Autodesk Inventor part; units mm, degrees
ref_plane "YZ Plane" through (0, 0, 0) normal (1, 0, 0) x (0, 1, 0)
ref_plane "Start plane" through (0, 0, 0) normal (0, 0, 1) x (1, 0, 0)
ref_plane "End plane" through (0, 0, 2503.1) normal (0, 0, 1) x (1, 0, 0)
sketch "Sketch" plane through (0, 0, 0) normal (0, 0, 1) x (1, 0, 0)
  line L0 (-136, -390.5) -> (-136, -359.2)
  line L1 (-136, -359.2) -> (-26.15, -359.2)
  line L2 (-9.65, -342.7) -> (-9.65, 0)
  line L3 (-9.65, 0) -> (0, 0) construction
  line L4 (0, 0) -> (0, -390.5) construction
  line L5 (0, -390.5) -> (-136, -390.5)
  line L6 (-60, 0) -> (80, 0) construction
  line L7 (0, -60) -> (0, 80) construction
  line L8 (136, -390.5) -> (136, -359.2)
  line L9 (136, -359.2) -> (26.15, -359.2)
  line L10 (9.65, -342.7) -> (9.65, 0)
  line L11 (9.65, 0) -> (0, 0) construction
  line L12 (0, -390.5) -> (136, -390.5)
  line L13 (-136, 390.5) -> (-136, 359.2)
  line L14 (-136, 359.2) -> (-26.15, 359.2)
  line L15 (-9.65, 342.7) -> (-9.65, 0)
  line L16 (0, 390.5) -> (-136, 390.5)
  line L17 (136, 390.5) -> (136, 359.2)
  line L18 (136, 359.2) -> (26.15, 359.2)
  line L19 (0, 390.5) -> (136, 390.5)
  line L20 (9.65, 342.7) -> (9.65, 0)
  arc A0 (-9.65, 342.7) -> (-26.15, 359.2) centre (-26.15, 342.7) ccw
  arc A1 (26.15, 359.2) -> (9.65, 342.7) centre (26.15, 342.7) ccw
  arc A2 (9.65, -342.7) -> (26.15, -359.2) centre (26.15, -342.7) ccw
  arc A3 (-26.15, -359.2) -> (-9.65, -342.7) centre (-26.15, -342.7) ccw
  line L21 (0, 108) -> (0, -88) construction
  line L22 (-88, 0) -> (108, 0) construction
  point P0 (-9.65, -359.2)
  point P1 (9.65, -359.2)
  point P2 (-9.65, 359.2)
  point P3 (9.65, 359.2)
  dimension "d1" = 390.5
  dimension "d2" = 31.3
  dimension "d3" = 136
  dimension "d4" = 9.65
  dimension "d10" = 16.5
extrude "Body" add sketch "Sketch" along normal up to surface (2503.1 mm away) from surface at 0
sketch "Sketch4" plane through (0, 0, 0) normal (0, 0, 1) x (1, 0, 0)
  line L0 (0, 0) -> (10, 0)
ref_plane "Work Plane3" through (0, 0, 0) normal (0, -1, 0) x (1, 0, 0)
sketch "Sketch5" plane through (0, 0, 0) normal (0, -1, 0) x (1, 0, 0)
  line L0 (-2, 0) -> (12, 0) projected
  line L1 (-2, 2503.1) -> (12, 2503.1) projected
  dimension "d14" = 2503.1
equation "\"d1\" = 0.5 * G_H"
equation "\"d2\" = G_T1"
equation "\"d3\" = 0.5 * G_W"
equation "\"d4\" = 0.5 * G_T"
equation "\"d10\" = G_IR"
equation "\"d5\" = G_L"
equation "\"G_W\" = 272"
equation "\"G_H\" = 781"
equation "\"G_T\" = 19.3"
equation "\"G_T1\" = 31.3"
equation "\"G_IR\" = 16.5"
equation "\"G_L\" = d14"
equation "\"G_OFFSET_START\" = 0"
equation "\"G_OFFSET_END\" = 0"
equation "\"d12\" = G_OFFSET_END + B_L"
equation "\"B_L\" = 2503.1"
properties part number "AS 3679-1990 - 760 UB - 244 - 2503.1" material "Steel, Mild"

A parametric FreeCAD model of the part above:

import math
import FreeCAD as App
import Part
import Sketcher

doc = App.newDocument("Part")
params = doc.addObject("Spreadsheet::Sheet", "Params")
for row, (alias, value) in enumerate([
    ("sketch1_radius", "16.5 mm"),
    ("sketch1_height", "31.3 mm"),
    ("pad1_length", "2503.1 mm"),
], start=1):
    params.set(f"A{row}", alias)
    params.set(f"B{row}", "=" + value)
    params.setAlias(f"B{row}", alias)

body = doc.addObject("PartDesign::Body", "Body")

# Sketch on XY plane
sketch1 = body.newObject("Sketcher::SketchObject", "Sketch")
sketch1.AttachmentSupport = (doc.getObject("XY_Plane"), [""])
sketch1.MapMode = "FlatFace"
sketch1.addGeometry(Part.LineSegment(App.Vector(-136, -359, 0), App.Vector(-136, -390, 0)), False)
sketch1.addGeometry(Part.LineSegment(App.Vector(-136, -390, 0), App.Vector(136, -390, 0)), False)
sketch1.addGeometry(Part.LineSegment(App.Vector(136, -390, 0), App.Vector(136, -359, 0)), False)
sketch1.addGeometry(Part.LineSegment(App.Vector(136, -359, 0), App.Vector(26, -359, 0)), False)
sketch1.addGeometry(Part.ArcOfCircle(Part.Circle(App.Vector(26, -343, 0), App.Vector(0, 0, 1), 16), math.radians(180), math.radians(270)), False)
sketch1.addGeometry(Part.LineSegment(App.Vector(10, -343, 0), App.Vector(10, 343, 0)), False)
sketch1.addGeometry(Part.ArcOfCircle(Part.Circle(App.Vector(26, 343, 0), App.Vector(0, 0, 1), 16), math.radians(90), math.radians(180)), False)
sketch1.addGeometry(Part.LineSegment(App.Vector(26, 359, 0), App.Vector(136, 359, 0)), False)
sketch1.addGeometry(Part.LineSegment(App.Vector(136, 359, 0), App.Vector(136, 390, 0)), False)
sketch1.addGeometry(Part.LineSegment(App.Vector(136, 390, 0), App.Vector(-136, 390, 0)), False)
sketch1.addGeometry(Part.LineSegment(App.Vector(-136, 390, 0), App.Vector(-136, 359, 0)), False)
sketch1.addGeometry(Part.LineSegment(App.Vector(-136, 359, 0), App.Vector(-26, 359, 0)), False)
sketch1.addGeometry(Part.ArcOfCircle(Part.Circle(App.Vector(-26, 343, 0), App.Vector(0, 0, 1), 16), math.radians(0), math.radians(90)), False)
sketch1.addGeometry(Part.LineSegment(App.Vector(-10, 343, 0), App.Vector(-10, -343, 0)), False)
sketch1.addGeometry(Part.ArcOfCircle(Part.Circle(App.Vector(-26, -343, 0), App.Vector(0, 0, 1), 16), math.radians(-90), math.radians(0)), False)
sketch1.addGeometry(Part.LineSegment(App.Vector(-26, -359, 0), App.Vector(-136, -359, 0)), False)
sketch1.addConstraint(Sketcher.Constraint("Coincident", 0, 2, 1, 1))
sketch1.addConstraint(Sketcher.Constraint("Coincident", 1, 2, 2, 1))
sketch1.addConstraint(Sketcher.Constraint("Coincident", 2, 2, 3, 1))
sketch1.addConstraint(Sketcher.Constraint("Tangent", 3, 2, 4, 2))
sketch1.addConstraint(Sketcher.Constraint("Tangent", 4, 1, 5, 1))
sketch1.addConstraint(Sketcher.Constraint("Tangent", 5, 2, 6, 2))
sketch1.addConstraint(Sketcher.Constraint("Tangent", 6, 1, 7, 1))
sketch1.addConstraint(Sketcher.Constraint("Coincident", 7, 2, 8, 1))
sketch1.addConstraint(Sketcher.Constraint("Coincident", 8, 2, 9, 1))
sketch1.addConstraint(Sketcher.Constraint("Coincident", 9, 2, 10, 1))
sketch1.addConstraint(Sketcher.Constraint("Coincident", 10, 2, 11, 1))
sketch1.addConstraint(Sketcher.Constraint("Tangent", 11, 2, 12, 2))
sketch1.addConstraint(Sketcher.Constraint("Tangent", 12, 1, 13, 1))
sketch1.addConstraint(Sketcher.Constraint("Tangent", 13, 2, 14, 2))
sketch1.addConstraint(Sketcher.Constraint("Tangent", 14, 1, 15, 1))
sketch1.addConstraint(Sketcher.Constraint("Coincident", 15, 2, 0, 1))
sketch1.addConstraint(Sketcher.Constraint("Vertical", 0))
sketch1.addConstraint(Sketcher.Constraint("Horizontal", 1))
sketch1.addConstraint(Sketcher.Constraint("Vertical", 2))
sketch1.addConstraint(Sketcher.Constraint("Horizontal", 3))
sketch1.addConstraint(Sketcher.Constraint("Vertical", 5))
sketch1.addConstraint(Sketcher.Constraint("Horizontal", 7))
sketch1.addConstraint(Sketcher.Constraint("Vertical", 8))
sketch1.addConstraint(Sketcher.Constraint("Horizontal", 9))
sketch1.addConstraint(Sketcher.Constraint("Vertical", 10))
sketch1.addConstraint(Sketcher.Constraint("Horizontal", 11))
sketch1.addConstraint(Sketcher.Constraint("Vertical", 13))
sketch1.addConstraint(Sketcher.Constraint("Horizontal", 15))
sketch1.addConstraint(Sketcher.Constraint("Equal", 4, 6))
sketch1.addConstraint(Sketcher.Constraint("Equal", 6, 12))
sketch1.addConstraint(Sketcher.Constraint("Equal", 12, 14))
sketch1.addConstraint(Sketcher.Constraint("Symmetric", 4, 3, 12, 3, -1, 1))
sketch1.addConstraint(Sketcher.Constraint("Symmetric", 0, 2, 8, 2, -1, 1))
sketch1.addConstraint(Sketcher.Constraint("Symmetric", 7, 2, 10, 2, -2))
sketch1.addConstraint(Sketcher.Constraint("Symmetric", 2, 2, 15, 2, -2))
sketch1.addConstraint(Sketcher.Constraint("Radius", 4, 16.5))
sketch1.addConstraint(Sketcher.Constraint("DistanceY", 0, 2, 0, 1, 31.3))
sketch1.addConstraint(Sketcher.Constraint("DistanceX", 0, 2, -1, 1, 136.0))
sketch1.addConstraint(Sketcher.Constraint("DistanceY", 0, 2, -1, 1, 390.5))
sketch1.addConstraint(Sketcher.Constraint("DistanceX", -1, 1, 4, 1, 9.65))
sketch1.setExpression("Constraints[35]", "Params.sketch1_radius")
sketch1.setExpression("Constraints[36]", "Params.sketch1_height")
pad1 = body.newObject("PartDesign::Pad", "Pad")
pad1.Profile = sketch1
pad1.setExpression("Length", "Params.pad1_length")

doc.recompute()
